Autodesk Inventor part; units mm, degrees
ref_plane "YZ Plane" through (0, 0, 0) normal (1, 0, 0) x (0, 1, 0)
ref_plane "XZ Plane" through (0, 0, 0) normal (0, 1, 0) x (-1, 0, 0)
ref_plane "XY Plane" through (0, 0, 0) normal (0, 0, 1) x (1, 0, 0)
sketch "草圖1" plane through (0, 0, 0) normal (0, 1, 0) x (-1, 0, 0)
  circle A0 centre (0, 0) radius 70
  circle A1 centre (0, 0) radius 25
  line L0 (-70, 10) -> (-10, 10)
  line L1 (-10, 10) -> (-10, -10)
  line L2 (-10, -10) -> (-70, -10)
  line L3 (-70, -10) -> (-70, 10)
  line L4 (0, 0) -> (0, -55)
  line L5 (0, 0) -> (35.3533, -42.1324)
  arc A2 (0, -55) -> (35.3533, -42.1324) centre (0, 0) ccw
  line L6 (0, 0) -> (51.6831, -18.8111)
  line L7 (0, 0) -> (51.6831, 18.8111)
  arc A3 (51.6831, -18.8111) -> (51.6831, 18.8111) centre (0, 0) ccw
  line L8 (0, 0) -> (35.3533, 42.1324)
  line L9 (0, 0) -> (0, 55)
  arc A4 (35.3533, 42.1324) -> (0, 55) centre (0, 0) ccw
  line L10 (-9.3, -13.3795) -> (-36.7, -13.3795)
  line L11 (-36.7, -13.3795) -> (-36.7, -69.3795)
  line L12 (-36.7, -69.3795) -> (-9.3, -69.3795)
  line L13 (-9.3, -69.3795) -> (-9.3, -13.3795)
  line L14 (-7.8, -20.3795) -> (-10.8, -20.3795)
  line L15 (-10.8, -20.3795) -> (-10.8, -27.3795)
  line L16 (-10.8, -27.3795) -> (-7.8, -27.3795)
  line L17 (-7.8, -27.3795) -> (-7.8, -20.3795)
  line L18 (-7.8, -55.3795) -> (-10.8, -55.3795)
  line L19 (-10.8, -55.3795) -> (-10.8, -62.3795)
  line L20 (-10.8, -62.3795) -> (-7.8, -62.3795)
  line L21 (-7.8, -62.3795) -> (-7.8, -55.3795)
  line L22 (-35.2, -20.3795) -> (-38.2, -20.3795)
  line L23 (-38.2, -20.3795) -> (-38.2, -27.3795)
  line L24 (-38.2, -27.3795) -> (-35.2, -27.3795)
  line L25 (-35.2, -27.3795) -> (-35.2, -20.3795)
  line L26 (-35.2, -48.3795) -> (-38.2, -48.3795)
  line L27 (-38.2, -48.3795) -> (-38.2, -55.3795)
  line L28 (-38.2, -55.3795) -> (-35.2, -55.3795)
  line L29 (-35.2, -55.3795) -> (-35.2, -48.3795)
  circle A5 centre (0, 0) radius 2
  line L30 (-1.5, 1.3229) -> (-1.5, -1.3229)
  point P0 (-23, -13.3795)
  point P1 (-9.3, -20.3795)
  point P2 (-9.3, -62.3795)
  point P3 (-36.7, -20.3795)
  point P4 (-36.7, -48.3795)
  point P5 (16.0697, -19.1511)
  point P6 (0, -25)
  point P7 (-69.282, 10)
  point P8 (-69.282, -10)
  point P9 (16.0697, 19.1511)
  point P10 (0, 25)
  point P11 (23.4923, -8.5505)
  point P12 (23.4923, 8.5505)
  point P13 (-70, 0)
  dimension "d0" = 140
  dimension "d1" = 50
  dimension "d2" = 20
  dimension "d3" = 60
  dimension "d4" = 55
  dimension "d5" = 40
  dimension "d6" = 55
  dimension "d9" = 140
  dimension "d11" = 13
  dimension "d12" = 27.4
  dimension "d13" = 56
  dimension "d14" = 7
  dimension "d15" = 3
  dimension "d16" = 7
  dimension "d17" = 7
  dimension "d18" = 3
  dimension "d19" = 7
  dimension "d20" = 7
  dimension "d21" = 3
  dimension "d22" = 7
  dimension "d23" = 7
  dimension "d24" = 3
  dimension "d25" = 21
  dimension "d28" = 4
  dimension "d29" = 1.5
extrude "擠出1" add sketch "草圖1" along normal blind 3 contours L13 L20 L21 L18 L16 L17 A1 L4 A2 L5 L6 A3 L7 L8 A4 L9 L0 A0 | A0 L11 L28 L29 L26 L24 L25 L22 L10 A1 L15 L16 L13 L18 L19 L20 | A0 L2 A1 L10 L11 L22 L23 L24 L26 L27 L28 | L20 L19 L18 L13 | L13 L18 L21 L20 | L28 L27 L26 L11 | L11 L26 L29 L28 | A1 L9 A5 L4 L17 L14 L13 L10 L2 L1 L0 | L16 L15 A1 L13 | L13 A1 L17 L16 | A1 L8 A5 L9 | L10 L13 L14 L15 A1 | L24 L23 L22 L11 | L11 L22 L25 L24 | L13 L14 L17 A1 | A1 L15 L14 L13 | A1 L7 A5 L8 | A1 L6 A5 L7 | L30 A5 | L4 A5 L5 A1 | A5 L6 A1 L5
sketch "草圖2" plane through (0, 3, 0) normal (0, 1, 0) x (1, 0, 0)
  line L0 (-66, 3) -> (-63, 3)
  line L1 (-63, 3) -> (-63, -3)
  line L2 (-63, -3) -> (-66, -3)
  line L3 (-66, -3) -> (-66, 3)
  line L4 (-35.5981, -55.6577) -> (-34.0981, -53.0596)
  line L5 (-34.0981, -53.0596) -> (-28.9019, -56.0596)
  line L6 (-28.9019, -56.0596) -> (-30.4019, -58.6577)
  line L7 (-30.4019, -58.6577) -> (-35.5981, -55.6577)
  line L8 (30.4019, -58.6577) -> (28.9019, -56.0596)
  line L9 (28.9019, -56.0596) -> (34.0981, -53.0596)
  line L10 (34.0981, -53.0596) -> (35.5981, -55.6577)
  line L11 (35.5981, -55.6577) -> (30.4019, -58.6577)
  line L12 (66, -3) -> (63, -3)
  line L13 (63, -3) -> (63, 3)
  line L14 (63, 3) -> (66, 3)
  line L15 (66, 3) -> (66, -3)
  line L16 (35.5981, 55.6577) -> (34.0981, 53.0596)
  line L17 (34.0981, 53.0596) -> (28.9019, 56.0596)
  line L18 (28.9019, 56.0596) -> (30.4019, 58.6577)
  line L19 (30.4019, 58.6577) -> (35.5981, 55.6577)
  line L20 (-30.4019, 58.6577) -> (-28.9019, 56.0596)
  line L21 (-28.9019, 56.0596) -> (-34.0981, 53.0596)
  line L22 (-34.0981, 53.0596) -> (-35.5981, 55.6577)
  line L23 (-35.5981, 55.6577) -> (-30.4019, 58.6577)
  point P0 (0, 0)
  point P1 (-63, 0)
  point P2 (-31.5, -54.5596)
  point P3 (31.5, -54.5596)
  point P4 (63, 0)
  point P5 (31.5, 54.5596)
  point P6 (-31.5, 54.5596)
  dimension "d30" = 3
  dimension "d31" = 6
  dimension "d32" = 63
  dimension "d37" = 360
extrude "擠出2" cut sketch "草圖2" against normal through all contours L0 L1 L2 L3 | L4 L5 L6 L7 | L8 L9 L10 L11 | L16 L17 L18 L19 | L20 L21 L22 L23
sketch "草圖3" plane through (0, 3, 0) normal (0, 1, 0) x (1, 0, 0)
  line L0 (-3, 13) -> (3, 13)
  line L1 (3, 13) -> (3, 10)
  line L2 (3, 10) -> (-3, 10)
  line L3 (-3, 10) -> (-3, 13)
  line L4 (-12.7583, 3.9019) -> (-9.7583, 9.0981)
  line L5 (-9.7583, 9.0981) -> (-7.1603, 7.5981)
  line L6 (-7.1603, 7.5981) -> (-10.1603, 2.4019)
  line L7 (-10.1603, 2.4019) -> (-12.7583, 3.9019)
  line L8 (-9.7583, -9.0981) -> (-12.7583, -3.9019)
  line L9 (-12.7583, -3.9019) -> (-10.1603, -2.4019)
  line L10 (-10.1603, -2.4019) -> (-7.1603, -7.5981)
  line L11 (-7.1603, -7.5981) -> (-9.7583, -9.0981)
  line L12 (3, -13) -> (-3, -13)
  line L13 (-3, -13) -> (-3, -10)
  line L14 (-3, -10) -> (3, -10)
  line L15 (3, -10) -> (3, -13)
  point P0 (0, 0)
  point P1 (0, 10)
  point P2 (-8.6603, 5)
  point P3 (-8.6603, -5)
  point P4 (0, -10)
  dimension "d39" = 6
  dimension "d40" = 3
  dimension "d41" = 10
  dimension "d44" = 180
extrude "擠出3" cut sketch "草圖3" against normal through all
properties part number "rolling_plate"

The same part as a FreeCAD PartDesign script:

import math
import FreeCAD as App
import Part
import Sketcher
Q = App.Units.Quantity


def add_polygon(sketch, points):
    """Adds a closed chain of lines whose ends are joined by coincident constraints."""
    first, n = sketch.GeometryCount, len(points)
    for a, b in zip(points, points[1:] + points[:1]):
        sketch.addGeometry(Part.LineSegment(App.Vector(*a, 0), App.Vector(*b, 0)), False)
    for i in range(n):
        sketch.addConstraint(Sketcher.Constraint("Coincident", first + i, 2, first + (i + 1) % n, 1))

doc = App.newDocument("Part")
body = doc.addObject("PartDesign::Body", "Body")

# Sketch on XZ plane
sketch1 = body.newObject("Sketcher::SketchObject", "Sketch")
sketch1.AttachmentSupport = (doc.getObject("XZ_Plane"), [""])
sketch1.MapMode = "FlatFace"
sketch1.addGeometry(Part.LineSegment(App.Vector(69.3, 10, 0), App.Vector(10, 10, 0)), False)
sketch1.addGeometry(Part.LineSegment(App.Vector(10, 10, 0), App.Vector(10, -10, 0)), False)
sketch1.addGeometry(Part.LineSegment(App.Vector(10, -10, 0), App.Vector(69.3, -10, 0)), False)
sketch1.addGeometry(Part.ArcOfCircle(Part.Circle(App.Vector(0, 0, 0), App.Vector(0, 0, 1), 70), math.radians(8), math.radians(352)), False)
sketch1.addGeometry(Part.LineSegment(App.Vector(0, -55, 0), App.Vector(0, -25, 0)), False)
sketch1.addGeometry(Part.ArcOfCircle(Part.Circle(App.Vector(0, 0, 0), App.Vector(0, 0, 1), 25), math.radians(-130), math.radians(-90)), False)
sketch1.addGeometry(Part.LineSegment(App.Vector(-16.1, -19.2, 0), App.Vector(-35.4, -42.1, 0)), False)
sketch1.addGeometry(Part.ArcOfCircle(Part.Circle(App.Vector(0, 0, 0), App.Vector(0, 0, 1), 55), math.radians(-130), math.radians(-90)), False)
sketch1.addGeometry(Part.LineSegment(App.Vector(-51.7, -18.8, 0), App.Vector(-23.5, -8.6, 0)), False)
sketch1.addGeometry(Part.ArcOfCircle(Part.Circle(App.Vector(0, 0, 0), App.Vector(0, 0, 1), 25), math.radians(160), math.radians(200)), False)
sketch1.addGeometry(Part.LineSegment(App.Vector(-23.5, 8.6, 0), App.Vector(-51.7, 18.8, 0)), False)
sketch1.addGeometry(Part.ArcOfCircle(Part.Circle(App.Vector(0, 0, 0), App.Vector(0, 0, 1), 55), math.radians(160), math.radians(200)), False)
sketch1.addGeometry(Part.LineSegment(App.Vector(-35.4, 42.1, 0), App.Vector(-16.1, 19.2, 0)), False)
sketch1.addGeometry(Part.ArcOfCircle(Part.Circle(App.Vector(0, 0, 0), App.Vector(0, 0, 1), 25), math.radians(90), math.radians(130)), False)
sketch1.addGeometry(Part.LineSegment(App.Vector(0, 25, 0), App.Vector(0, 55, 0)), False)
sketch1.addGeometry(Part.ArcOfCircle(Part.Circle(App.Vector(0, 0, 0), App.Vector(0, 0, 1), 55), math.radians(90), math.radians(130)), False)
sketch1.addGeometry(Part.ArcOfCircle(Part.Circle(App.Vector(0, 0, 0), App.Vector(0, 0, 1), 2), math.radians(41), math.radians(319)), False)
sketch1.addGeometry(Part.LineSegment(App.Vector(1.5, 1.3, 0), App.Vector(1.5, -1.3, 0)), False)
sketch1.addConstraint(Sketcher.Constraint("Coincident", 0, 2, 1, 1))
sketch1.addConstraint(Sketcher.Constraint("Coincident", 1, 2, 2, 1))
sketch1.addConstraint(Sketcher.Constraint("Coincident", 2, 2, 3, 2))
sketch1.addConstraint(Sketcher.Constraint("Coincident", 3, 1, 0, 1))
sketch1.addConstraint(Sketcher.Constraint("Coincident", 4, 2, 5, 2))
sketch1.addConstraint(Sketcher.Constraint("Coincident", 5, 1, 6, 1))
sketch1.addConstraint(Sketcher.Constraint("Coincident", 6, 2, 7, 1))
sketch1.addConstraint(Sketcher.Constraint("Coincident", 7, 2, 4, 1))
sketch1.addConstraint(Sketcher.Constraint("Coincident", 8, 2, 9, 2))
sketch1.addConstraint(Sketcher.Constraint("Coincident", 9, 1, 10, 1))
sketch1.addConstraint(Sketcher.Constraint("Coincident", 10, 2, 11, 1))
sketch1.addConstraint(Sketcher.Constraint("Coincident", 11, 2, 8, 1))
sketch1.addConstraint(Sketcher.Constraint("Coincident", 12, 2, 13, 2))
sketch1.addConstraint(Sketcher.Constraint("Coincident", 13, 1, 14, 1))
sketch1.addConstraint(Sketcher.Constraint("Coincident", 14, 2, 15, 1))
sketch1.addConstraint(Sketcher.Constraint("Coincident", 15, 2, 12, 1))
sketch1.addConstraint(Sketcher.Constraint("Coincident", 16, 1, 17, 1))
sketch1.addConstraint(Sketcher.Constraint("Coincident", 17, 2, 16, 2))
sketch1.addConstraint(Sketcher.Constraint("Horizontal", 0))
sketch1.addConstraint(Sketcher.Constraint("Vertical", 1))
sketch1.addConstraint(Sketcher.Constraint("Horizontal", 2))
sketch1.addConstraint(Sketcher.Constraint("Vertical", 4))
sketch1.addConstraint(Sketcher.Constraint("Vertical", 14))
sketch1.addConstraint(Sketcher.Constraint("Vertical", 17))
sketch1.addConstraint(Sketcher.Constraint("Coincident", 3, 3, -1, 1))
sketch1.addConstraint(Sketcher.Constraint("Coincident", 5, 3, -1, 1))
sketch1.addConstraint(Sketcher.Constraint("Coincident", 7, 3, -1, 1))
sketch1.addConstraint(Sketcher.Constraint("Coincident", 9, 3, -1, 1))
sketch1.addConstraint(Sketcher.Constraint("Coincident", 11, 3, -1, 1))
sketch1.addConstraint(Sketcher.Constraint("Coincident", 13, 3, -1, 1))
sketch1.addConstraint(Sketcher.Constraint("Coincident", 15, 3, -1, 1))
sketch1.addConstraint(Sketcher.Constraint("Coincident", 16, 3, -1, 1))
sketch1.addConstraint(Sketcher.Constraint("Equal", 5, 9))
sketch1.addConstraint(Sketcher.Constraint("Equal", 7, 11))
sketch1.addConstraint(Sketcher.Constraint("Equal", 9, 13))
sketch1.addConstraint(Sketcher.Constraint("Equal", 11, 15))
sketch1.addConstraint(Sketcher.Constraint("PointOnObject", 4, 2, -2))
sketch1.addConstraint(Sketcher.Constraint("PointOnObject", 13, 1, -2))
sketch1.addConstraint(Sketcher.Constraint("Vertical", 2, 2, 3, 1))
sketch1.addConstraint(Sketcher.Constraint("Vertical", 8, 2, 9, 1))
sketch1.addConstraint(Sketcher.Constraint("Vertical", 10, 2, 11, 2))
sketch1.addConstraint(Sketcher.Constraint("Vertical", 5, 1, 12, 2))
sketch1.addConstraint(Sketcher.Constraint("Vertical", 6, 2, 15, 2))
sketch1.addConstraint(Sketcher.Constraint("Radius", 3, Q("70 mm")))
sketch1.addConstraint(Sketcher.Constraint("Radius", 5, Q("25 mm")))
sketch1.addConstraint(Sketcher.Constraint("Radius", 7, Q("55 mm")))
sketch1.addConstraint(Sketcher.Constraint("Radius", 16, Q("2 mm")))
sketch1.addConstraint(Sketcher.Constraint("DistanceY", 1, 2, 1, 1, Q("20 mm")))
sketch1.addConstraint(Sketcher.Constraint("Angle", 8, Q("20 deg")))
sketch1.addConstraint(Sketcher.Constraint("Angle", 12, Q("-50 deg")))
sketch1.addConstraint(Sketcher.Constraint("DistanceX", -1, 1, 16, 1, Q("1.5 mm")))
sketch1.addConstraint(Sketcher.Constraint("DistanceX", -1, 1, 0, 2, Q("10 mm")))
sketch1.addConstraint(Sketcher.Constraint("DistanceY", 5, 1, 11, 2, Q("0.34 mm")))
sketch1.addConstraint(Sketcher.Constraint("DistanceY", 5, 1, -1, 1, Q("19.151 mm")))
pad1 = body.newObject("PartDesign::Pad", "Pad")
pad1.Profile = sketch1
pad1.Length = 3
pad1.Reversed = True

# Sketch on XZ plane
sketch2 = body.newObject("Sketcher::SketchObject", "Sketch001")
sketch2.AttachmentSupport = (doc.getObject("XZ_Plane"), [""])
sketch2.MapMode = "FlatFace"
sketch2.AttachmentOffset = App.Placement(App.Vector(0, 0, -3), App.Rotation())
add_polygon(sketch2, [(-63, -3), (-66, -3), (-66, 3), (-63, 3)])  # lines 0-3
add_polygon(sketch2, [(-34.1, 53.1), (-35.6, 55.7), (-30.4, 58.7), (-28.9, 56.1)])  # lines 4-7
add_polygon(sketch2, [(28.9, 56.1), (30.4, 58.7), (35.6, 55.7), (34.1, 53.1)])  # lines 8-11
add_polygon(sketch2, [(34.1, -53.1), (35.6, -55.7), (30.4, -58.7), (28.9, -56.1)])  # lines 12-15
add_polygon(sketch2, [(-28.9, -56.1), (-30.4, -58.7), (-35.6, -55.7), (-34.1, -53.1)])  # lines 16-19
sketch2.addConstraint(Sketcher.Constraint("Horizontal", 0))
sketch2.addConstraint(Sketcher.Constraint("Vertical", 1))
sketch2.addConstraint(Sketcher.Constraint("Horizontal", 2))
sketch2.addConstraint(Sketcher.Constraint("Vertical", 3))
sketch2.addConstraint(Sketcher.Constraint("Symmetric", 4, 2, 12, 2, -1, 1))
sketch2.addConstraint(Sketcher.Constraint("Symmetric", 5, 2, 13, 2, -1, 1))
sketch2.addConstraint(Sketcher.Constraint("Symmetric", 6, 2, 14, 2, -1, 1))
sketch2.addConstraint(Sketcher.Constraint("Symmetric", 7, 2, 15, 2, -1, 1))
sketch2.addConstraint(Sketcher.Constraint("Symmetric", 8, 2, 16, 2, -1, 1))
sketch2.addConstraint(Sketcher.Constraint("Symmetric", 9, 2, 17, 2, -1, 1))
sketch2.addConstraint(Sketcher.Constraint("Symmetric", 10, 2, 18, 2, -1, 1))
sketch2.addConstraint(Sketcher.Constraint("Symmetric", 11, 2, 19, 2, -1, 1))
sketch2.addConstraint(Sketcher.Constraint("Symmetric", 5, 2, 8, 2, -2))
sketch2.addConstraint(Sketcher.Constraint("Symmetric", 4, 2, 9, 2, -2))
sketch2.addConstraint(Sketcher.Constraint("Symmetric", 7, 2, 10, 2, -2))
sketch2.addConstraint(Sketcher.Constraint("Symmetric", 6, 2, 11, 2, -2))
sketch2.addConstraint(Sketcher.Constraint("Perpendicular", 4, 5))
sketch2.addConstraint(Sketcher.Constraint("Perpendicular", 5, 6))
sketch2.addConstraint(Sketcher.Constraint("Perpendicular", 6, 7))
sketch2.addConstraint(Sketcher.Constraint("DistanceX", 0, 2, 0, 1, Q("3 mm")))
sketch2.addConstraint(Sketcher.Constraint("DistanceY", 1, 1, 1, 2, Q("6 mm")))
sketch2.addConstraint(Sketcher.Constraint("Distance", 4, Q("3 mm")))
sketch2.addConstraint(Sketcher.Constraint("Distance", 5, Q("6 mm")))
sketch2.addConstraint(Sketcher.Constraint("DistanceY", 0, 2, -1, 1, Q("3 mm")))
sketch2.addConstraint(Sketcher.Constraint("DistanceX", 2, 2, -1, 1, Q("63 mm")))
sketch2.addConstraint(Sketcher.Constraint("DistanceY", 4, 2, 5, 2, Q("3 mm")))
sketch2.addConstraint(Sketcher.Constraint("DistanceX", 6, 2, 10, 2, Q("63 mm")))
sketch2.addConstraint(Sketcher.Constraint("DistanceY", -1, 1, 4, 2, Q("55.6577 mm")))
pocket1 = body.newObject("PartDesign::Pocket", "Pocket")
pocket1.Profile = sketch2
pocket1.Type = "ThroughAll"
pocket1.Reversed = True

# Sketch on XZ plane
sketch3 = body.newObject("Sketcher::SketchObject", "Sketch002")
sketch3.AttachmentSupport = (doc.getObject("XZ_Plane"), [""])
sketch3.MapMode = "FlatFace"
sketch3.AttachmentOffset = App.Placement(App.Vector(0, 0, -3), App.Rotation())
add_polygon(sketch3, [(3, -13), (-3, -13), (-3, -10), (3, -10)])  # lines 0-3
add_polygon(sketch3, [(-9.8, -9.1), (-12.8, -3.9), (-10.2, -2.4), (-7.2, -7.6)])  # lines 4-7
add_polygon(sketch3, [(-12.8, 3.9), (-9.8, 9.1), (-7.2, 7.6), (-10.2, 2.4)])  # lines 8-11
add_polygon(sketch3, [(-3, 13), (3, 13), (3, 10), (-3, 10)])  # lines 12-15
sketch3.addConstraint(Sketcher.Constraint("Horizontal", 0))
sketch3.addConstraint(Sketcher.Constraint("Vertical", 1))
sketch3.addConstraint(Sketcher.Constraint("Horizontal", 2))
sketch3.addConstraint(Sketcher.Constraint("Vertical", 3))
sketch3.addConstraint(Sketcher.Constraint("Horizontal", 12))
sketch3.addConstraint(Sketcher.Constraint("Vertical", 13))
sketch3.addConstraint(Sketcher.Constraint("Horizontal", 14))
sketch3.addConstraint(Sketcher.Constraint("Vertical", 15))
sketch3.addConstraint(Sketcher.Constraint("Symmetric", 0, 2, 12, 2, -1, 1))
sketch3.addConstraint(Sketcher.Constraint("Symmetric", 2, 2, 14, 2, -1, 1))
sketch3.addConstraint(Sketcher.Constraint("Symmetric", 7, 2, 8, 2, -1))
sketch3.addConstraint(Sketcher.Constraint("Symmetric", 6, 2, 9, 2, -1))
sketch3.addConstraint(Sketcher.Constraint("Symmetric", 5, 2, 10, 2, -1))
sketch3.addConstraint(Sketcher.Constraint("Symmetric", 4, 2, 11, 2, -1))
sketch3.addConstraint(Sketcher.Constraint("Perpendicular", 4, 5))
sketch3.addConstraint(Sketcher.Constraint("Perpendicular", 5, 6))
sketch3.addConstraint(Sketcher.Constraint("Perpendicular", 6, 7))
sketch3.addConstraint(Sketcher.Constraint("Vertical", 3, 2, 12, 2))
sketch3.addConstraint(Sketcher.Constraint("DistanceX", 0, 2, 0, 1, Q("6 mm")))
sketch3.addConstraint(Sketcher.Constraint("DistanceY", 1, 1, 1, 2, Q("3 mm")))
sketch3.addConstraint(Sketcher.Constraint("Distance", 4, Q("6 mm")))
sketch3.addConstraint(Sketcher.Constraint("Distance", 5, Q("3 mm")))
sketch3.addConstraint(Sketcher.Constraint("DistanceY", 1, 2, -1, 1, Q("10 mm")))
sketch3.addConstraint(Sketcher.Constraint("DistanceX", 5, 2, 6, 2, Q("3 mm")))
sketch3.addConstraint(Sketcher.Constraint("DistanceY", 5, 2, 9, 2, Q("10 mm")))
sketch3.addConstraint(Sketcher.Constraint("DistanceX", 4, 2, -1, 1, Q("12.7583 mm")))
pocket2 = body.newObject("PartDesign::Pocket", "Pocket001")
pocket2.Profile = sketch3
pocket2.Type = "ThroughAll"
pocket2.Reversed = True

doc.recompute()
